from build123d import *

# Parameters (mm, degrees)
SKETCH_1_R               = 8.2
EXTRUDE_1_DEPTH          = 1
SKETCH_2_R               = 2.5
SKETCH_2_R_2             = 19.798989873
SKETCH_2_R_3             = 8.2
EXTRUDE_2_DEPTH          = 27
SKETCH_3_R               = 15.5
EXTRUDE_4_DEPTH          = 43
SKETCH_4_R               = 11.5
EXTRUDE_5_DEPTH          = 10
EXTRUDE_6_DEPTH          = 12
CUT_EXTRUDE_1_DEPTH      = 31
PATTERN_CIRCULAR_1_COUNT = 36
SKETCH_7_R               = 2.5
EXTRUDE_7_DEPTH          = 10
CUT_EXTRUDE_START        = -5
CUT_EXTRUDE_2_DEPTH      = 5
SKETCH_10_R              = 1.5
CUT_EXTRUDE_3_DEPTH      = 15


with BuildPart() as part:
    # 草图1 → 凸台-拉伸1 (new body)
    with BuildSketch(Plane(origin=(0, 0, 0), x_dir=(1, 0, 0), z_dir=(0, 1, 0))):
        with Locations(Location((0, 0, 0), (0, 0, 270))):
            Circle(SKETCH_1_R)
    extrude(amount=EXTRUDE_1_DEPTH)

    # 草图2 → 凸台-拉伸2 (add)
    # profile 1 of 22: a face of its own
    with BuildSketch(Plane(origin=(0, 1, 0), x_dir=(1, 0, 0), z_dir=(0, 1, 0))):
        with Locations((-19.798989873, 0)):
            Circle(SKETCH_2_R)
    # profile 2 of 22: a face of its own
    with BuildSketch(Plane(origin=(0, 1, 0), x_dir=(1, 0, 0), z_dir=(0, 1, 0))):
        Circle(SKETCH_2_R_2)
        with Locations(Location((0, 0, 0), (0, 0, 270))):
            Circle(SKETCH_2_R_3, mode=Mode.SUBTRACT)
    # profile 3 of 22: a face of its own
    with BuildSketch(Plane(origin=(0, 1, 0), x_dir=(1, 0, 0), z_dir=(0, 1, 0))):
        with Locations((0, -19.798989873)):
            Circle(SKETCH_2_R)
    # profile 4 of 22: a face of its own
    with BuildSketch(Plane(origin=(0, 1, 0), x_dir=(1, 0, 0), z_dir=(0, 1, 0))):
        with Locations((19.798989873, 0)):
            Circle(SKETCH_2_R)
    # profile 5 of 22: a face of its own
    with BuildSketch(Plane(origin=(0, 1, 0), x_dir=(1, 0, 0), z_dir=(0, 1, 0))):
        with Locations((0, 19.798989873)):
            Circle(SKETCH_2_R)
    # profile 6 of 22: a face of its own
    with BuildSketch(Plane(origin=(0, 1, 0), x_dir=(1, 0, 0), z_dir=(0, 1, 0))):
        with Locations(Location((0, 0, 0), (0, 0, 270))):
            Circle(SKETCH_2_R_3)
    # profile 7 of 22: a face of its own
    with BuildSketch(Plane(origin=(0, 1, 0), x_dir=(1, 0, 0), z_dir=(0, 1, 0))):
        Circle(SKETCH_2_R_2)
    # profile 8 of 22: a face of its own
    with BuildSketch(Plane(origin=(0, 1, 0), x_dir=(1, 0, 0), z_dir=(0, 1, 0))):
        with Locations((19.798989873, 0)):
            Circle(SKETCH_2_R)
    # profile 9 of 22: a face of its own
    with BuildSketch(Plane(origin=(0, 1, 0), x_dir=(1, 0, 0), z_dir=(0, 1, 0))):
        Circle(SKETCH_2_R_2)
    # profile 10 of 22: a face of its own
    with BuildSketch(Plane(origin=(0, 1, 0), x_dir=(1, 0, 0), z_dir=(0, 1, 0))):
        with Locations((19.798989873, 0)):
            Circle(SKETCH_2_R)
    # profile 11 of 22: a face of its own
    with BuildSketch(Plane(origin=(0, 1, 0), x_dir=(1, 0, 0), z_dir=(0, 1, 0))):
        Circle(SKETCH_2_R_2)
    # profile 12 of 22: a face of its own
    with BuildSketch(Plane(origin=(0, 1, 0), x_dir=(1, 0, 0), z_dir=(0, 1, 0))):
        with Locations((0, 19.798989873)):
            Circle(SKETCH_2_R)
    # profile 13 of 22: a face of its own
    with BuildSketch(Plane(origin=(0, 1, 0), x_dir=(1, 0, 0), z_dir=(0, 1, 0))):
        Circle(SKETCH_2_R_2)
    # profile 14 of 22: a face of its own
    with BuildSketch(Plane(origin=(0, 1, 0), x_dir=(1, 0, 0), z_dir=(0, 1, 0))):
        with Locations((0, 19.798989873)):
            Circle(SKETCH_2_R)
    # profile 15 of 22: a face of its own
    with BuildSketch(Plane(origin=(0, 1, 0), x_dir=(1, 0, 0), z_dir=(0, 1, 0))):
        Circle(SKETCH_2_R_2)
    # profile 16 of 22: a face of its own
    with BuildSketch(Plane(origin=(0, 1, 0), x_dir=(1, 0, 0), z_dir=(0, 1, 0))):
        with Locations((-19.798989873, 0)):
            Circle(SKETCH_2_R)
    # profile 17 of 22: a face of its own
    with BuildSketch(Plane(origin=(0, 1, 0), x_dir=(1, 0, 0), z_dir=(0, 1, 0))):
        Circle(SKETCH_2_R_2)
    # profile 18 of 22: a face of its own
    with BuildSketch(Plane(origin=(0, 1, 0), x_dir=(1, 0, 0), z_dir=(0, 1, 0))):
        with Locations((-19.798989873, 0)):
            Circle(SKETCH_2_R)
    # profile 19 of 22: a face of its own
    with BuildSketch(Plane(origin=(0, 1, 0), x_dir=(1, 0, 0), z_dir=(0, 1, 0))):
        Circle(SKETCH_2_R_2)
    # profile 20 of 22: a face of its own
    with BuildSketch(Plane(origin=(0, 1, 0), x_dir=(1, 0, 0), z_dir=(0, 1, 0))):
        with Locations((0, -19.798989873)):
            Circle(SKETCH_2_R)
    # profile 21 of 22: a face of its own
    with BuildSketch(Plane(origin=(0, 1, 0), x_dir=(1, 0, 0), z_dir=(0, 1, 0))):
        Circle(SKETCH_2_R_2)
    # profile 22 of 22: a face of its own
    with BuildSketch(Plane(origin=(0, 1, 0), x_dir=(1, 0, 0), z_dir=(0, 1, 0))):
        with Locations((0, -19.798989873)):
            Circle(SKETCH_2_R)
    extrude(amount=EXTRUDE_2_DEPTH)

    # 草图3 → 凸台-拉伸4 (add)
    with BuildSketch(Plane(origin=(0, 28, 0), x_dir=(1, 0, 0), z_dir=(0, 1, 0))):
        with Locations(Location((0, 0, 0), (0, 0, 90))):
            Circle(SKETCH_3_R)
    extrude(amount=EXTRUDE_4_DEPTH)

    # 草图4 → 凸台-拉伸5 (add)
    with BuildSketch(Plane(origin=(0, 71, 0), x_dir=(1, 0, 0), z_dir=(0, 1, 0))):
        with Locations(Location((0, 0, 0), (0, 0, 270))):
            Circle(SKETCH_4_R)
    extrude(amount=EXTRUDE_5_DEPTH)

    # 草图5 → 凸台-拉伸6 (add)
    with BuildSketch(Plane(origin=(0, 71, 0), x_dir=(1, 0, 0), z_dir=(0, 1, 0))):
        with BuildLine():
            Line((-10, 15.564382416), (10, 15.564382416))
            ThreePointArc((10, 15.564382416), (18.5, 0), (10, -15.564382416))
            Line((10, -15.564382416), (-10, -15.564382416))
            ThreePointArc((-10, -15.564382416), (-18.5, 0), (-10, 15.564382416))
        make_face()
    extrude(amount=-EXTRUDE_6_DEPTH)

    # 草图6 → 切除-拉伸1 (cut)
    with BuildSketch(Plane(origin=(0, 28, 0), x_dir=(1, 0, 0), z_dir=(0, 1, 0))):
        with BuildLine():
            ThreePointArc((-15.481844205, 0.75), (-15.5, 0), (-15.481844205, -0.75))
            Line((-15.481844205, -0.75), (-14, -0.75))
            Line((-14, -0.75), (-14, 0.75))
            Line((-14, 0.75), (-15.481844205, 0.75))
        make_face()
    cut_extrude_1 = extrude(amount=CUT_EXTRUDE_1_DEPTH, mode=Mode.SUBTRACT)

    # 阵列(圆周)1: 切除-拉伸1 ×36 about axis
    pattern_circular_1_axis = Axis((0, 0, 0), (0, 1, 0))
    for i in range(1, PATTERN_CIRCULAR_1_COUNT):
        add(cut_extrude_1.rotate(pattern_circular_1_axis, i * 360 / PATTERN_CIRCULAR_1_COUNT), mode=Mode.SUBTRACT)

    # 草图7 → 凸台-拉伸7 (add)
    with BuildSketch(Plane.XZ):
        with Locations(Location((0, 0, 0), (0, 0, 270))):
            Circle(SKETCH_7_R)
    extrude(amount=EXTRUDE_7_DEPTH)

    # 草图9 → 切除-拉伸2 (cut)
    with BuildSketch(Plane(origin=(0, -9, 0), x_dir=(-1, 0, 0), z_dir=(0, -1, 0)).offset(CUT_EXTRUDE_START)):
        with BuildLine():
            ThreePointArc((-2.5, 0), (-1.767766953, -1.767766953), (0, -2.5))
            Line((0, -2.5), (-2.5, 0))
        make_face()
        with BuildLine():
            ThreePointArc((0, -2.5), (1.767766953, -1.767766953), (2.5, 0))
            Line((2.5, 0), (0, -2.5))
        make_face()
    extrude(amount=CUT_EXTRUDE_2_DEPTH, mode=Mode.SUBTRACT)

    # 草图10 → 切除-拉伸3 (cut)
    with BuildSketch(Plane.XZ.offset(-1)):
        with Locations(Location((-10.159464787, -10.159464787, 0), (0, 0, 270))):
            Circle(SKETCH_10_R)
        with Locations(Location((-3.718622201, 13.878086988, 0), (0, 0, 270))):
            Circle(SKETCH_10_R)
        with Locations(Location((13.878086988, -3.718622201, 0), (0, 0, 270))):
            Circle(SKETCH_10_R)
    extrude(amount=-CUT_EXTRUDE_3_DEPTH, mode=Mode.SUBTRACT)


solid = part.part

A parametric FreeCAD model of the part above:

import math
import FreeCAD as App
import Part
import Sketcher

V = App.Vector

doc = App.newDocument("Part")
body = doc.addObject("PartDesign::Body", "Body")

# Sketch on XZ plane
sketch1 = body.newObject("Sketcher::SketchObject", "Sketch")
sketch1.AttachmentSupport = (doc.getObject("XZ_Plane"), [""])
sketch1.MapMode = "FlatFace"
sketch1.addGeometry(Part.Circle(V(0, 0, 0), V(0, 0, 1), 8), False)
sketch1.addConstraint(Sketcher.Constraint("Coincident", 0, 3, -1, 1))
sketch1.addConstraint(Sketcher.Constraint("Diameter", 0, 16.4))
pad1 = body.newObject("PartDesign::Pad", "Pad")
pad1.Profile = sketch1
pad1.Length = 1
pad1.Reversed = True

# Sketch on XZ plane
sketch2 = body.newObject("Sketcher::SketchObject", "Sketch001")
sketch2.AttachmentSupport = (doc.getObject("XZ_Plane"), [""])
sketch2.MapMode = "FlatFace"
sketch2.AttachmentOffset = App.Placement(V(0, 0, -1), App.Rotation())
sketch2.addGeometry(Part.ArcOfCircle(Part.Circle(V(0, 0, 0), V(0, 0, 1), 19.8), math.radians(7), math.radians(83)), False)
sketch2.addGeometry(Part.ArcOfCircle(Part.Circle(V(19.8, 0, 0), V(0, 0, 1), 2.5), math.radians(-94), math.radians(94)), False)
sketch2.addGeometry(Part.ArcOfCircle(Part.Circle(V(0, 0, 0), V(0, 0, 1), 19.8), math.radians(-83), math.radians(-7)), False)
sketch2.addGeometry(Part.ArcOfCircle(Part.Circle(V(0, -19.8, 0), V(0, 0, 1), 2.5), math.radians(176), math.radians(364)), False)
sketch2.addGeometry(Part.ArcOfCircle(Part.Circle(V(0, 0, 0), V(0, 0, 1), 19.8), math.radians(-173), math.radians(-97)), False)
sketch2.addGeometry(Part.ArcOfCircle(Part.Circle(V(-19.8, 0, 0), V(0, 0, 1), 2.5), math.radians(86), math.radians(274)), False)
sketch2.addGeometry(Part.ArcOfCircle(Part.Circle(V(0, 0, 0), V(0, 0, 1), 19.8), math.radians(97), math.radians(173)), False)
sketch2.addGeometry(Part.ArcOfCircle(Part.Circle(V(0, 19.8, 0), V(0, 0, 1), 2.5), math.radians(-4), math.radians(184)), False)
sketch2.addConstraint(Sketcher.Constraint("Coincident", 0, 1, 1, 2))
sketch2.addConstraint(Sketcher.Constraint("Coincident", 1, 1, 2, 2))
sketch2.addConstraint(Sketcher.Constraint("Coincident", 2, 1, 3, 2))
sketch2.addConstraint(Sketcher.Constraint("Coincident", 3, 1, 4, 2))
sketch2.addConstraint(Sketcher.Constraint("Coincident", 4, 1, 5, 2))
sketch2.addConstraint(Sketcher.Constraint("Coincident", 5, 1, 6, 2))
sketch2.addConstraint(Sketcher.Constraint("Coincident", 6, 1, 7, 2))
sketch2.addConstraint(Sketcher.Constraint("Coincident", 7, 1, 0, 2))
sketch2.addConstraint(Sketcher.Constraint("Coincident", 0, 3, -1, 1))
sketch2.addConstraint(Sketcher.Constraint("Coincident", 2, 3, -1, 1))
sketch2.addConstraint(Sketcher.Constraint("Coincident", 4, 3, -1, 1))
sketch2.addConstraint(Sketcher.Constraint("Coincident", 6, 3, -1, 1))
sketch2.addConstraint(Sketcher.Constraint("Equal", 0, 2))
sketch2.addConstraint(Sketcher.Constraint("Equal", 1, 3))
sketch2.addConstraint(Sketcher.Constraint("Equal", 2, 4))
sketch2.addConstraint(Sketcher.Constraint("Equal", 3, 5))
sketch2.addConstraint(Sketcher.Constraint("Equal", 4, 6))
sketch2.addConstraint(Sketcher.Constraint("Equal", 5, 7))
sketch2.addConstraint(Sketcher.Constraint("Symmetric", 1, 3, 5, 3, -1, 1))
sketch2.addConstraint(Sketcher.Constraint("Symmetric", 3, 3, 7, 3, -1, 1))
sketch2.addConstraint(Sketcher.Constraint("PointOnObject", 1, 3, -1))
sketch2.addConstraint(Sketcher.Constraint("PointOnObject", 3, 3, -2))
sketch2.addConstraint(Sketcher.Constraint("Radius", 1, 2.5))
sketch2.addConstraint(Sketcher.Constraint("Radius", 0, 19.79899))
sketch2.addConstraint(Sketcher.Constraint("DistanceX", -1, 1, 1, 3, 19.79899))
sketch2.addConstraint(Sketcher.Constraint("DistanceY", 3, 3, -1, 1, 19.79899))
pad2 = body.newObject("PartDesign::Pad", "Pad001")
pad2.Profile = sketch2
pad2.Length = 27
pad2.Reversed = True

# Sketch on XZ plane
sketch3 = body.newObject("Sketcher::SketchObject", "Sketch002")
sketch3.AttachmentSupport = (doc.getObject("XZ_Plane"), [""])
sketch3.MapMode = "FlatFace"
sketch3.AttachmentOffset = App.Placement(V(0, 0, -28), App.Rotation())
sketch3.addGeometry(Part.Circle(V(0, 0, 0), V(0, 0, 1), 16), False)
sketch3.addConstraint(Sketcher.Constraint("Coincident", 0, 3, -1, 1))
sketch3.addConstraint(Sketcher.Constraint("Diameter", 0, 31.0))
pad3 = body.newObject("PartDesign::Pad", "Pad002")
pad3.Profile = sketch3
pad3.Length = 43
pad3.Reversed = True

# Sketch on XZ plane
sketch4 = body.newObject("Sketcher::SketchObject", "Sketch003")
sketch4.AttachmentSupport = (doc.getObject("XZ_Plane"), [""])
sketch4.MapMode = "FlatFace"
sketch4.AttachmentOffset = App.Placement(V(0, 0, -71), App.Rotation())
sketch4.addGeometry(Part.Circle(V(0, 0, 0), V(0, 0, 1), 12), False)
sketch4.addConstraint(Sketcher.Constraint("Coincident", 0, 3, -1, 1))
sketch4.addConstraint(Sketcher.Constraint("Diameter", 0, 23.0))
pad4 = body.newObject("PartDesign::Pad", "Pad003")
pad4.Profile = sketch4
pad4.Length = 10
pad4.Reversed = True

# Sketch on XZ plane
sketch5 = body.newObject("Sketcher::SketchObject", "Sketch004")
sketch5.AttachmentSupport = (doc.getObject("XZ_Plane"), [""])
sketch5.MapMode = "FlatFace"
sketch5.AttachmentOffset = App.Placement(V(0, 0, -71), App.Rotation())
sketch5.addGeometry(Part.LineSegment(V(10, -16, 0), V(-10, -16, 0)), False)
sketch5.addGeometry(Part.ArcOfCircle(Part.Circle(V(0, 0, 0), V(0, 0, 1), 18), math.radians(123), math.radians(237)), False)
sketch5.addGeometry(Part.LineSegment(V(-10, 16, 0), V(10, 16, 0)), False)
sketch5.addGeometry(Part.ArcOfCircle(Part.Circle(V(0, 0, 0), V(0, 0, 1), 18), math.radians(-57), math.radians(57)), False)
sketch5.addConstraint(Sketcher.Constraint("Coincident", 0, 2, 1, 2))
sketch5.addConstraint(Sketcher.Constraint("Coincident", 1, 1, 2, 1))
sketch5.addConstraint(Sketcher.Constraint("Coincident", 2, 2, 3, 2))
sketch5.addConstraint(Sketcher.Constraint("Coincident", 3, 1, 0, 1))
sketch5.addConstraint(Sketcher.Constraint("Horizontal", 0))
sketch5.addConstraint(Sketcher.Constraint("Horizontal", 2))
sketch5.addConstraint(Sketcher.Constraint("Coincident", 1, 3, -1, 1))
sketch5.addConstraint(Sketcher.Constraint("Coincident", 3, 3, -1, 1))
sketch5.addConstraint(Sketcher.Constraint("Equal", 1, 3))
sketch5.addConstraint(Sketcher.Constraint("Vertical", 0, 2, 1, 1))
sketch5.addConstraint(Sketcher.Constraint("Radius", 1, 18.5))
sketch5.addConstraint(Sketcher.Constraint("DistanceX", 0, 2, 0, 1, 20.0))
pad5 = body.newObject("PartDesign::Pad", "Pad004")
pad5.Profile = sketch5
pad5.Length = 12

# Sketch on XZ plane
sketch6 = body.newObject("Sketcher::SketchObject", "Sketch005")
sketch6.AttachmentSupport = (doc.getObject("XZ_Plane"), [""])
sketch6.MapMode = "FlatFace"
sketch6.AttachmentOffset = App.Placement(V(0, 0, -28), App.Rotation())
sketch6.addGeometry(Part.ArcOfCircle(Part.Circle(V(0, 0, 0), V(0, 0, 1), 15.5), math.radians(177.23), math.radians(182.77)), False)
sketch6.addGeometry(Part.LineSegment(V(-15.5, 0.8, 0), V(-14, 0.8, 0)), False)
sketch6.addGeometry(Part.LineSegment(V(-14, 0.8, 0), V(-14, -0.8, 0)), False)
sketch6.addGeometry(Part.LineSegment(V(-14, -0.8, 0), V(-15.5, -0.8, 0)), False)
sketch6.addConstraint(Sketcher.Constraint("Coincident", 0, 1, 1, 1))
sketch6.addConstraint(Sketcher.Constraint("Coincident", 1, 2, 2, 1))
sketch6.addConstraint(Sketcher.Constraint("Coincident", 2, 2, 3, 1))
sketch6.addConstraint(Sketcher.Constraint("Coincident", 3, 2, 0, 2))
sketch6.addConstraint(Sketcher.Constraint("Horizontal", 1))
sketch6.addConstraint(Sketcher.Constraint("Vertical", 2))
sketch6.addConstraint(Sketcher.Constraint("Horizontal", 3))
sketch6.addConstraint(Sketcher.Constraint("Coincident", 0, 3, -1, 1))
sketch6.addConstraint(Sketcher.Constraint("Vertical", 0, 1, 3, 2))
sketch6.addConstraint(Sketcher.Constraint("Radius", 0, 15.5))
sketch6.addConstraint(Sketcher.Constraint("DistanceY", 2, 2, 2, 1, 1.5))
sketch6.addConstraint(Sketcher.Constraint("DistanceX", 1, 2, -1, 1, 14.0))
pocket1 = body.newObject("PartDesign::Pocket", "Pocket")
pocket1.Profile = sketch6
pocket1.Length = 31
doc.recompute()

polarpattern = body.newObject("PartDesign::PolarPattern", "PolarPattern")
polarpattern.Originals = [pocket1]
polarpattern.Axis = (doc.getObject("Y_Axis"), [""])
polarpattern.Angle = 360
polarpattern.Occurrences = 36
body.Tip = polarpattern

# Sketch on XZ plane
sketch7 = body.newObject("Sketcher::SketchObject", "Sketch006")
sketch7.AttachmentSupport = (doc.getObject("XZ_Plane"), [""])
sketch7.MapMode = "FlatFace"
sketch7.addGeometry(Part.Circle(V(0, 0, 0), V(0, 0, 1), 2.5), False)
sketch7.addConstraint(Sketcher.Constraint("Coincident", 0, 3, -1, 1))
sketch7.addConstraint(Sketcher.Constraint("Diameter", 0, 5.0))
pad6 = body.newObject("PartDesign::Pad", "Pad005")
pad6.Profile = sketch7
pad6.Length = 10

# Sketch on XZ plane
sketch8 = body.newObject("Sketcher::SketchObject", "Sketch007")
sketch8.AttachmentSupport = (doc.getObject("XZ_Plane"), [""])
sketch8.MapMode = "FlatFace"
sketch8.AttachmentOffset = App.Placement(V(0, 0, 4), App.Rotation())
sketch8.addGeometry(Part.ArcOfCircle(Part.Circle(V(0, 0, 0), V(0, 0, 1), 2.5), math.radians(0), math.radians(90)), False)
sketch8.addGeometry(Part.LineSegment(V(0, 2.5, 0), V(2.5, 0, 0)), False)
sketch8.addGeometry(Part.ArcOfCircle(Part.Circle(V(0, 0, 0), V(0, 0, 1), 2.5), math.radians(90), math.radians(180)), False)
sketch8.addGeometry(Part.LineSegment(V(-2.5, 0, 0), V(0, 2.5, 0)), False)
sketch8.addConstraint(Sketcher.Constraint("Coincident", 0, 1, 1, 2))
sketch8.addConstraint(Sketcher.Constraint("Coincident", 1, 1, 0, 2))
sketch8.addConstraint(Sketcher.Constraint("Coincident", 2, 1, 3, 2))
sketch8.addConstraint(Sketcher.Constraint("Coincident", 3, 1, 2, 2))
sketch8.addConstraint(Sketcher.Constraint("Coincident", 0, 3, -1, 1))
sketch8.addConstraint(Sketcher.Constraint("Coincident", 2, 3, -1, 1))
sketch8.addConstraint(Sketcher.Constraint("Coincident", 2, 1, 1, 1))
sketch8.addConstraint(Sketcher.Constraint("PointOnObject", 0, 1, -1))
sketch8.addConstraint(Sketcher.Constraint("PointOnObject", 1, 1, -2))
sketch8.addConstraint(Sketcher.Constraint("PointOnObject", 3, 1, -1))
sketch8.addConstraint(Sketcher.Constraint("Radius", 0, 2.5))
pocket2 = body.newObject("PartDesign::Pocket", "Pocket001")
pocket2.Profile = sketch8
pocket2.Length = 5
pocket2.Reversed = True

# Sketch on XZ plane
sketch9 = body.newObject("Sketcher::SketchObject", "Sketch008")
sketch9.AttachmentSupport = (doc.getObject("XZ_Plane"), [""])
sketch9.MapMode = "FlatFace"
sketch9.AttachmentOffset = App.Placement(V(0, 0, -1), App.Rotation())
sketch9.addGeometry(Part.Circle(V(-10.2, -10.2, 0), V(0, 0, 1), 1.5), False)
sketch9.addGeometry(Part.Circle(V(-3.7, 13.9, 0), V(0, 0, 1), 1.5), False)
sketch9.addGeometry(Part.Circle(V(13.9, -3.7, 0), V(0, 0, 1), 1.5), False)
sketch9.addConstraint(Sketcher.Constraint("Equal", 0, 1))
sketch9.addConstraint(Sketcher.Constraint("Equal", 1, 2))
sketch9.addConstraint(Sketcher.Constraint("Diameter", 0, 3.0))
sketch9.addConstraint(Sketcher.Constraint("DistanceY", 0, 3, 1, 3, 24.037552))
sketch9.addConstraint(Sketcher.Constraint("DistanceX", 0, 3, 2, 3, 24.037552))
sketch9.addConstraint(Sketcher.Constraint("DistanceX", 1, 3, 2, 3, 17.596709))
sketch9.addConstraint(Sketcher.Constraint("DistanceY", 2, 3, 1, 3, 17.596709))
sketch9.addConstraint(Sketcher.Constraint("DistanceX", 0, 3, -1, 1, 10.159465))
sketch9.addConstraint(Sketcher.Constraint("DistanceY", 0, 3, -1, 1, 10.159465))
pocket3 = body.newObject("PartDesign::Pocket", "Pocket002")
pocket3.Profile = sketch9
pocket3.Length = 15

doc.recompute()
